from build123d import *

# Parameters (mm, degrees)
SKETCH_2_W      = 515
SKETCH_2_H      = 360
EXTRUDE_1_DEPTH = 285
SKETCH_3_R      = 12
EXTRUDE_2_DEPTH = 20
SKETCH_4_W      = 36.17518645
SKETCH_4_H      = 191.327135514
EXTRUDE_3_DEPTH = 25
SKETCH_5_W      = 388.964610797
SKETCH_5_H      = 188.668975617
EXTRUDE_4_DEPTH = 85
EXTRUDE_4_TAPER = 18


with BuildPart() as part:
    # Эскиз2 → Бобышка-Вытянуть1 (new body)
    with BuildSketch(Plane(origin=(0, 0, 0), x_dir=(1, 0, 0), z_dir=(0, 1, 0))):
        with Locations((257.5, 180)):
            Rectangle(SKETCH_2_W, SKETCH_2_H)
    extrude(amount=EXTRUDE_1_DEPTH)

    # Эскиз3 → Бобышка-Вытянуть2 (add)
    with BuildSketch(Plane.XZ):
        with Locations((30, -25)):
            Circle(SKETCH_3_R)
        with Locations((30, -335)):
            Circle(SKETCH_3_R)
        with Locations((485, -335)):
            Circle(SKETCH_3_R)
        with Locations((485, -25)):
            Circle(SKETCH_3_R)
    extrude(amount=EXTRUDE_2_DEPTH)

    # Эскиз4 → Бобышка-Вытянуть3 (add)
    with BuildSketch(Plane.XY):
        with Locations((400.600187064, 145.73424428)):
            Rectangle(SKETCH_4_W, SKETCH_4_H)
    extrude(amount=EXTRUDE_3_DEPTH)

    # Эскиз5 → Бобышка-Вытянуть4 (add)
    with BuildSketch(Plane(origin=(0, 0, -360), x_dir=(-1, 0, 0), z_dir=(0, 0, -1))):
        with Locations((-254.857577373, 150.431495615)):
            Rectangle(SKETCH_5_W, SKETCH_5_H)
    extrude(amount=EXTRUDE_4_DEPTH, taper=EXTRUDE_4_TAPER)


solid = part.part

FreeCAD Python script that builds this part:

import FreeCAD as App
import Part
import Sketcher

V = App.Vector


def add_polygon(sketch, points):
    """Adds a closed chain of lines whose ends are joined by coincident constraints."""
    first, n = sketch.GeometryCount, len(points)
    for a, b in zip(points, points[1:] + points[:1]):
        sketch.addGeometry(Part.LineSegment(App.Vector(*a, 0), App.Vector(*b, 0)), False)
    for i in range(n):
        sketch.addConstraint(Sketcher.Constraint("Coincident", first + i, 2, first + (i + 1) % n, 1))

doc = App.newDocument("Part")
params = doc.addObject("Spreadsheet::Sheet", "Params")
for row, (alias, value) in enumerate([
    ("sketch1_width", "515 mm"),
    ("sketch1_height", "360 mm"),
    ("pad1_length", "285 mm"),
    ("sketch2_diameter", "24 mm"),
    ("pad2_length", "20 mm"),
    ("pad3_length", "25 mm"),
    ("pad4_length", "85 mm"),
    ("pad4_taper", "-18 deg"),
], start=1):
    params.set(f"A{row}", alias)
    params.set(f"B{row}", "=" + value)
    params.setAlias(f"B{row}", alias)

body = doc.addObject("PartDesign::Body", "Body")

# Sketch on XZ plane
sketch1 = body.newObject("Sketcher::SketchObject", "Sketch")
sketch1.AttachmentSupport = (doc.getObject("XZ_Plane"), [""])
sketch1.MapMode = "FlatFace"
add_polygon(sketch1, [(0, -360), (0, 0), (515, 0), (515, -360)])  # lines 0-3
sketch1.addConstraint([
    Sketcher.Constraint("Vertical", 0),
    Sketcher.Constraint("Horizontal", 1),
    Sketcher.Constraint("Vertical", 2),
    Sketcher.Constraint("Horizontal", 3),
    Sketcher.Constraint("Coincident", 0, 2, -1, 1),
    Sketcher.Constraint("DistanceX", 1, 1, 1, 2, 515.0),
    Sketcher.Constraint("DistanceY", 0, 1, 0, 2, 360.0),
])
sketch1.setExpression("Constraints[9]", "Params.sketch1_width")
sketch1.setExpression("Constraints[10]", "Params.sketch1_height")
pad1 = body.newObject("PartDesign::Pad", "Pad")
pad1.Profile = sketch1
pad1.setExpression("Length", "Params.pad1_length")
pad1.Reversed = True

# Sketch on XZ plane
sketch2 = body.newObject("Sketcher::SketchObject", "Sketch001")
sketch2.AttachmentSupport = (doc.getObject("XZ_Plane"), [""])
sketch2.MapMode = "FlatFace"
sketch2.addGeometry([
    Part.Circle(V(30, -25, 0), V(0, 0, 1), 12),
    Part.Circle(V(30, -335, 0), V(0, 0, 1), 12),
    Part.Circle(V(485, -335, 0), V(0, 0, 1), 12),
    Part.Circle(V(485, -25, 0), V(0, 0, 1), 12),
], False)
sketch2.addConstraint([
    Sketcher.Constraint("Equal", 0, 1),
    Sketcher.Constraint("Equal", 1, 2),
    Sketcher.Constraint("Equal", 2, 3),
    Sketcher.Constraint("Horizontal", 1, 3, 2, 3),
    Sketcher.Constraint("Horizontal", 0, 3, 3, 3),
    Sketcher.Constraint("Vertical", 0, 3, 1, 3),
    Sketcher.Constraint("Vertical", 2, 3, 3, 3),
    Sketcher.Constraint("Diameter", 0, 24.0),
    Sketcher.Constraint("DistanceX", -1, 1, 0, 3, 30.0),
    Sketcher.Constraint("DistanceY", 0, 3, -1, 1, 25.0),
    Sketcher.Constraint("DistanceY", 1, 3, -1, 1, 335.0),
    Sketcher.Constraint("DistanceX", -1, 1, 2, 3, 485.0),
])
sketch2.setExpression("Constraints[7]", "Params.sketch2_diameter")
pad2 = body.newObject("PartDesign::Pad", "Pad001")
pad2.Profile = sketch2
pad2.setExpression("Length", "Params.pad2_length")

# Sketch on XY plane
sketch3 = body.newObject("Sketcher::SketchObject", "Sketch002")
sketch3.AttachmentSupport = (doc.getObject("XY_Plane"), [""])
sketch3.MapMode = "FlatFace"
add_polygon(sketch3, [(383, 241), (383, 50), (419, 50), (419, 241)])  # lines 0-3
sketch3.addConstraint([
    Sketcher.Constraint("Vertical", 0),
    Sketcher.Constraint("Horizontal", 1),
    Sketcher.Constraint("Vertical", 2),
    Sketcher.Constraint("Horizontal", 3),
    Sketcher.Constraint("DistanceX", 1, 1, 1, 2, 36.175186),
    Sketcher.Constraint("DistanceY", 0, 2, 0, 1, 191.327136),
    Sketcher.Constraint("DistanceX", -1, 1, 1, 2, 418.68778),
    Sketcher.Constraint("DistanceY", -1, 1, 0, 2, 50.070677),
])
pad3 = body.newObject("PartDesign::Pad", "Pad002")
pad3.Profile = sketch3
pad3.setExpression("Length", "Params.pad3_length")

# Sketch on XY plane
sketch4 = body.newObject("Sketcher::SketchObject", "Sketch003")
sketch4.AttachmentSupport = (doc.getObject("XY_Plane"), [""])
sketch4.MapMode = "FlatFace"
sketch4.AttachmentOffset = App.Placement(V(0, 0, -360), App.Rotation())
add_polygon(sketch4, [(449, 245), (449, 56), (60, 56), (60, 245)])  # lines 0-3
sketch4.addConstraint([
    Sketcher.Constraint("Vertical", 0),
    Sketcher.Constraint("Horizontal", 1),
    Sketcher.Constraint("Vertical", 2),
    Sketcher.Constraint("Horizontal", 3),
    Sketcher.Constraint("DistanceX", 1, 2, 1, 1, 388.964611),
    Sketcher.Constraint("DistanceY", 0, 2, 0, 1, 188.668976),
    Sketcher.Constraint("DistanceX", -1, 1, 1, 2, 60.375272),
    Sketcher.Constraint("DistanceY", -1, 1, 0, 2, 56.097008),
])
pad4 = body.newObject("PartDesign::Pad", "Pad003")
pad4.Profile = sketch4
pad4.setExpression("Length", "Params.pad4_length")
pad4.Reversed = True
pad4.setExpression("TaperAngle", "Params.pad4_taper")

doc.recompute()
